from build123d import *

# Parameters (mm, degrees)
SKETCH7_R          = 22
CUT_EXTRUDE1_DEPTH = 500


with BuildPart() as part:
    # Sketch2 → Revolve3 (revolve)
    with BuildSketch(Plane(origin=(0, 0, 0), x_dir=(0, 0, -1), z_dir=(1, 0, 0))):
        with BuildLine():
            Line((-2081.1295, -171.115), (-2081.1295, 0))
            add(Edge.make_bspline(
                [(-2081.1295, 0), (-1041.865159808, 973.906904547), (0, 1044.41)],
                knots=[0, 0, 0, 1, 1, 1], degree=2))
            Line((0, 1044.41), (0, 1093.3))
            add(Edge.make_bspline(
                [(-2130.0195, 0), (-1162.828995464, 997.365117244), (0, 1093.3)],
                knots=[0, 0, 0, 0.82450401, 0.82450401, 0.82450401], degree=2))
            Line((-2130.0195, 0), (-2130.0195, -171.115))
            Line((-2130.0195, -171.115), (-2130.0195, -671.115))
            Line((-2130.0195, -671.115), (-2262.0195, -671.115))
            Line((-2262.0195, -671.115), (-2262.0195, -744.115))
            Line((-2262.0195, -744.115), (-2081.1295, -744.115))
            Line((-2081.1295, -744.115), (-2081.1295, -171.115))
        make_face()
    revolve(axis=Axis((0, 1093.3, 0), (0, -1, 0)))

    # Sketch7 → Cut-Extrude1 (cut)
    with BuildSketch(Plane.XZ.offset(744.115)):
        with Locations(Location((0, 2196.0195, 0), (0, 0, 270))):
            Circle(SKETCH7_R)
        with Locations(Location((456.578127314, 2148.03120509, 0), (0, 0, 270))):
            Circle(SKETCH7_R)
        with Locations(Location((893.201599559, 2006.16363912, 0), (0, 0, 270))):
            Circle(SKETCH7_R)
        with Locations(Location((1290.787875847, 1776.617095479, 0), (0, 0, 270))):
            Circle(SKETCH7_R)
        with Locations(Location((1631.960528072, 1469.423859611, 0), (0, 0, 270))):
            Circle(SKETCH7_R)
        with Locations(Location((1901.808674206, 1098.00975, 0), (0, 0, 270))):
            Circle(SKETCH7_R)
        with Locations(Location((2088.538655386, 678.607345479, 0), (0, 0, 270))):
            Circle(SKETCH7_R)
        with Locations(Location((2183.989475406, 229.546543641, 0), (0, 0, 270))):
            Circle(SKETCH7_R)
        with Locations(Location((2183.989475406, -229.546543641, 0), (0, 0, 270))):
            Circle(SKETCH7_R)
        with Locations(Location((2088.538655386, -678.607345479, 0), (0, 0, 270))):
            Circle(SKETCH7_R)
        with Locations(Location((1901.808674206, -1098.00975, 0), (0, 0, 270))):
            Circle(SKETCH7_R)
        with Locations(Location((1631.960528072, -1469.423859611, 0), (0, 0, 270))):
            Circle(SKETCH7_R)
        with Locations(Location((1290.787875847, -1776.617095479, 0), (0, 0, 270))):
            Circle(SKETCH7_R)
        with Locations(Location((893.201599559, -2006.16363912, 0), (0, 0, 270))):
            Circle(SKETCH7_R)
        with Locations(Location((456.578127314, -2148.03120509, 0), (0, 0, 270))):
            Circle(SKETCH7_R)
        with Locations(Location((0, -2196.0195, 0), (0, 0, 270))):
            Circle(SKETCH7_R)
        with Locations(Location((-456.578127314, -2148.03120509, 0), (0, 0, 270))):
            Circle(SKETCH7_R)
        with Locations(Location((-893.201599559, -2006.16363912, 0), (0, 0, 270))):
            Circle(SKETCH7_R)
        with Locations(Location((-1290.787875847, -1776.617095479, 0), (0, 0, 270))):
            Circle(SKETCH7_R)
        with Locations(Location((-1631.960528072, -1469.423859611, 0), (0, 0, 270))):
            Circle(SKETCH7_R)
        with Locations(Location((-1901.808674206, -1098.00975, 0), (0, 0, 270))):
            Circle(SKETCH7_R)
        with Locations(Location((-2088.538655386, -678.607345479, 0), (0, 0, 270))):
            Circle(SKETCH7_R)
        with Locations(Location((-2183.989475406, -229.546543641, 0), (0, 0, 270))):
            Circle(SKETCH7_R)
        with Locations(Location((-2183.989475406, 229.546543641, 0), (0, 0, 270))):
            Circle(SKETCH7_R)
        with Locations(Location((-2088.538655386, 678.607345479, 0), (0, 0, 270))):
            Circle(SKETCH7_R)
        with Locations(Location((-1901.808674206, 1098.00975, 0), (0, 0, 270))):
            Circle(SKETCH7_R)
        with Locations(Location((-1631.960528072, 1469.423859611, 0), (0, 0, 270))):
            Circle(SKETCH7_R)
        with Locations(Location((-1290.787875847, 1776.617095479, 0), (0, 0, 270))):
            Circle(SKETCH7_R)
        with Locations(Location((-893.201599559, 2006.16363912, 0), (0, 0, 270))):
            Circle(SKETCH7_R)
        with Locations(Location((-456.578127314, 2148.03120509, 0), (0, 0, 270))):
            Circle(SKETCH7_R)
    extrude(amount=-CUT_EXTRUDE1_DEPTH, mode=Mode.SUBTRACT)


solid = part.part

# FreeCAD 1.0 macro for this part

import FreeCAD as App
import Part
import Sketcher
from FreeCAD import Vector
Q = App.Units.Quantity

doc = App.newDocument("Part")
params = doc.addObject("Spreadsheet::Sheet", "Params")
for row, (alias, value) in enumerate([
    ("sketch1_width", "73 mm"),
    ("sketch1_height", "132 mm"),
    ("revolution_angle", "360 deg"),
    ("sketch2_diameter", "44 mm"),
    ("pocket1_length", "500 mm"),
], start=1):
    params.set(f"A{row}", alias)
    params.set(f"B{row}", "=" + value)
    params.setAlias(f"B{row}", alias)

body = doc.addObject("PartDesign::Body", "Body")

sketch1 = body.newObject("Sketcher::SketchObject", "Sketch")
sketch1.AttachmentSupport = (doc.getObject("YZ_Plane"), [""])
sketch1.MapMode = "FlatFace"
sketch1.addGeometry(Part.BSplineCurve([Vector(0, 2081.1295, 0), Vector(973.906905, 1041.86516, 0), Vector(1044.41, 0, 0)], [3, 3], [0, 1], False, 2, [1, 1, 1], False), False)
sketch1.addGeometry(Part.LineSegment(Vector(1044.41, 0, 0), Vector(1093.3, 0, 0)), False)
sketch1.addGeometry(Part.BSplineCurve([Vector(0, 2130.0195, 0), Vector(997.365117, 1162.828995, 0), Vector(1093.3, 0, 0)], [3, 3], [0, 0.82450401], False, 2, [1, 1, 1], False), False)
sketch1.addGeometry(Part.LineSegment(Vector(0, 2130.0195, 0), Vector(-671.115, 2130.0195, 0)), False)
sketch1.addGeometry(Part.LineSegment(Vector(-671.115, 2130.0195, 0), Vector(-671.115, 2262.0195, 0)), False)
sketch1.addGeometry(Part.LineSegment(Vector(-671.115, 2262.0195, 0), Vector(-744.115, 2262.0195, 0)), False)
sketch1.addGeometry(Part.LineSegment(Vector(-744.115, 2262.0195, 0), Vector(-744.115, 2081.1295, 0)), False)
sketch1.addGeometry(Part.LineSegment(Vector(-744.115, 2081.1295, 0), Vector(0, 2081.1295, 0)), False)
sketch1.addConstraint(Sketcher.Constraint("Block", 0))
sketch1.addConstraint(Sketcher.Constraint("Block", 2))
sketch1.addConstraint(Sketcher.Constraint("Coincident", 0, 2, 1, 1))
sketch1.addConstraint(Sketcher.Constraint("Coincident", 1, 2, 2, 2))
sketch1.addConstraint(Sketcher.Constraint("Coincident", 2, 1, 3, 1))
sketch1.addConstraint(Sketcher.Constraint("Coincident", 3, 2, 4, 1))
sketch1.addConstraint(Sketcher.Constraint("Coincident", 4, 2, 5, 1))
sketch1.addConstraint(Sketcher.Constraint("Coincident", 5, 2, 6, 1))
sketch1.addConstraint(Sketcher.Constraint("Coincident", 6, 2, 7, 1))
sketch1.addConstraint(Sketcher.Constraint("Coincident", 7, 2, 0, 1))
sketch1.addConstraint(Sketcher.Constraint("Horizontal", 3))
sketch1.addConstraint(Sketcher.Constraint("Vertical", 4))
sketch1.addConstraint(Sketcher.Constraint("Horizontal", 5))
sketch1.addConstraint(Sketcher.Constraint("Vertical", 6))
sketch1.addConstraint(Sketcher.Constraint("Horizontal", 7))
sketch1.addConstraint(Sketcher.Constraint("DistanceX", 5, 2, 5, 1, Q("73 mm")))
sketch1.addConstraint(Sketcher.Constraint("DistanceY", 4, 1, 4, 2, Q("132 mm")))
sketch1.addConstraint(Sketcher.Constraint("DistanceX", 3, 2, 3, 1, Q("671.115 mm")))
sketch1.setExpression("Constraints[15]", "Params.sketch1_width")
sketch1.setExpression("Constraints[16]", "Params.sketch1_height")
revolution = body.newObject("PartDesign::Revolution", "Revolution")
revolution.Profile = sketch1
revolution.ReferenceAxis = (sketch1, ["H_Axis"])
revolution.setExpression("Angle", "Params.revolution_angle")

sketch2 = body.newObject("Sketcher::SketchObject", "Sketch001")
sketch2.AttachmentSupport = (doc.getObject("XZ_Plane"), [""])
sketch2.MapMode = "FlatFace"
sketch2.AttachmentOffset = App.Placement(Vector(0, 0, 744.115), App.Rotation())
sketch2.addGeometry(Part.Circle(Vector(0, 2196, 0), Vector(0, 0, 1), 22), False)
sketch2.addGeometry(Part.Circle(Vector(457, 2148, 0), Vector(0, 0, 1), 22), False)
sketch2.addGeometry(Part.Circle(Vector(893, 2006, 0), Vector(0, 0, 1), 22), False)
sketch2.addGeometry(Part.Circle(Vector(1291, 1777, 0), Vector(0, 0, 1), 22), False)
sketch2.addGeometry(Part.Circle(Vector(1632, 1469, 0), Vector(0, 0, 1), 22), False)
sketch2.addGeometry(Part.Circle(Vector(1902, 1098, 0), Vector(0, 0, 1), 22), False)
sketch2.addGeometry(Part.Circle(Vector(2089, 679, 0), Vector(0, 0, 1), 22), False)
sketch2.addGeometry(Part.Circle(Vector(2184, 230, 0), Vector(0, 0, 1), 22), False)
sketch2.addGeometry(Part.Circle(Vector(2184, -230, 0), Vector(0, 0, 1), 22), False)
sketch2.addGeometry(Part.Circle(Vector(2089, -679, 0), Vector(0, 0, 1), 22), False)
sketch2.addGeometry(Part.Circle(Vector(1902, -1098, 0), Vector(0, 0, 1), 22), False)
sketch2.addGeometry(Part.Circle(Vector(1632, -1469, 0), Vector(0, 0, 1), 22), False)
sketch2.addGeometry(Part.Circle(Vector(1291, -1777, 0), Vector(0, 0, 1), 22), False)
sketch2.addGeometry(Part.Circle(Vector(893, -2006, 0), Vector(0, 0, 1), 22), False)
sketch2.addGeometry(Part.Circle(Vector(457, -2148, 0), Vector(0, 0, 1), 22), False)
sketch2.addGeometry(Part.Circle(Vector(0, -2196, 0), Vector(0, 0, 1), 22), False)
sketch2.addGeometry(Part.Circle(Vector(-457, -2148, 0), Vector(0, 0, 1), 22), False)
sketch2.addGeometry(Part.Circle(Vector(-893, -2006, 0), Vector(0, 0, 1), 22), False)
sketch2.addGeometry(Part.Circle(Vector(-1291, -1777, 0), Vector(0, 0, 1), 22), False)
sketch2.addGeometry(Part.Circle(Vector(-1632, -1469, 0), Vector(0, 0, 1), 22), False)
sketch2.addGeometry(Part.Circle(Vector(-1902, -1098, 0), Vector(0, 0, 1), 22), False)
sketch2.addGeometry(Part.Circle(Vector(-2089, -679, 0), Vector(0, 0, 1), 22), False)
sketch2.addGeometry(Part.Circle(Vector(-2184, -230, 0), Vector(0, 0, 1), 22), False)
sketch2.addGeometry(Part.Circle(Vector(-2184, 230, 0), Vector(0, 0, 1), 22), False)
sketch2.addGeometry(Part.Circle(Vector(-2089, 679, 0), Vector(0, 0, 1), 22), False)
sketch2.addGeometry(Part.Circle(Vector(-1902, 1098, 0), Vector(0, 0, 1), 22), False)
sketch2.addGeometry(Part.Circle(Vector(-1632, 1469, 0), Vector(0, 0, 1), 22), False)
sketch2.addGeometry(Part.Circle(Vector(-1291, 1777, 0), Vector(0, 0, 1), 22), False)
sketch2.addGeometry(Part.Circle(Vector(-893, 2006, 0), Vector(0, 0, 1), 22), False)
sketch2.addGeometry(Part.Circle(Vector(-457, 2148, 0), Vector(0, 0, 1), 22), False)
sketch2.addConstraint(Sketcher.Constraint("Equal", 0, 1))
sketch2.addConstraint(Sketcher.Constraint("Equal", 1, 2))
sketch2.addConstraint(Sketcher.Constraint("Equal", 2, 3))
sketch2.addConstraint(Sketcher.Constraint("Equal", 3, 4))
sketch2.addConstraint(Sketcher.Constraint("Equal", 4, 5))
sketch2.addConstraint(Sketcher.Constraint("Equal", 5, 6))
sketch2.addConstraint(Sketcher.Constraint("Equal", 6, 7))
sketch2.addConstraint(Sketcher.Constraint("Equal", 7, 8))
sketch2.addConstraint(Sketcher.Constraint("Equal", 8, 9))
sketch2.addConstraint(Sketcher.Constraint("Equal", 9, 10))
sketch2.addConstraint(Sketcher.Constraint("Equal", 10, 11))
sketch2.addConstraint(Sketcher.Constraint("Equal", 11, 12))
sketch2.addConstraint(Sketcher.Constraint("Equal", 12, 13))
sketch2.addConstraint(Sketcher.Constraint("Equal", 13, 14))
sketch2.addConstraint(Sketcher.Constraint("Equal", 14, 15))
sketch2.addConstraint(Sketcher.Constraint("Equal", 15, 16))
sketch2.addConstraint(Sketcher.Constraint("Equal", 16, 17))
sketch2.addConstraint(Sketcher.Constraint("Equal", 17, 18))
sketch2.addConstraint(Sketcher.Constraint("Equal", 18, 19))
sketch2.addConstraint(Sketcher.Constraint("Equal", 19, 20))
sketch2.addConstraint(Sketcher.Constraint("Equal", 20, 21))
sketch2.addConstraint(Sketcher.Constraint("Equal", 21, 22))
sketch2.addConstraint(Sketcher.Constraint("Equal", 22, 23))
sketch2.addConstraint(Sketcher.Constraint("Equal", 23, 24))
sketch2.addConstraint(Sketcher.Constraint("Equal", 24, 25))
sketch2.addConstraint(Sketcher.Constraint("Equal", 25, 26))
sketch2.addConstraint(Sketcher.Constraint("Equal", 26, 27))
sketch2.addConstraint(Sketcher.Constraint("Equal", 27, 28))
sketch2.addConstraint(Sketcher.Constraint("Equal", 28, 29))
sketch2.addConstraint(Sketcher.Constraint("Symmetric", 0, 3, 15, 3, -1, 1))
sketch2.addConstraint(Sketcher.Constraint("Symmetric", 1, 3, 16, 3, -1, 1))
sketch2.addConstraint(Sketcher.Constraint("Symmetric", 2, 3, 17, 3, -1, 1))
sketch2.addConstraint(Sketcher.Constraint("Symmetric", 3, 3, 18, 3, -1, 1))
sketch2.addConstraint(Sketcher.Constraint("Symmetric", 4, 3, 19, 3, -1, 1))
sketch2.addConstraint(Sketcher.Constraint("Symmetric", 5, 3, 20, 3, -1, 1))
sketch2.addConstraint(Sketcher.Constraint("Symmetric", 6, 3, 21, 3, -1, 1))
sketch2.addConstraint(Sketcher.Constraint("Symmetric", 7, 3, 22, 3, -1, 1))
sketch2.addConstraint(Sketcher.Constraint("Symmetric", 8, 3, 23, 3, -1, 1))
sketch2.addConstraint(Sketcher.Constraint("Symmetric", 9, 3, 24, 3, -1, 1))
sketch2.addConstraint(Sketcher.Constraint("Symmetric", 10, 3, 25, 3, -1, 1))
sketch2.addConstraint(Sketcher.Constraint("Symmetric", 11, 3, 26, 3, -1, 1))
sketch2.addConstraint(Sketcher.Constraint("Symmetric", 12, 3, 27, 3, -1, 1))
sketch2.addConstraint(Sketcher.Constraint("Symmetric", 13, 3, 28, 3, -1, 1))
sketch2.addConstraint(Sketcher.Constraint("Symmetric", 14, 3, 29, 3, -1, 1))
sketch2.addConstraint(Sketcher.Constraint("Symmetric", 14, 3, 16, 3, -2))
sketch2.addConstraint(Sketcher.Constraint("Symmetric", 13, 3, 17, 3, -2))
sketch2.addConstraint(Sketcher.Constraint("Symmetric", 12, 3, 18, 3, -2))
sketch2.addConstraint(Sketcher.Constraint("Symmetric", 11, 3, 19, 3, -2))
sketch2.addConstraint(Sketcher.Constraint("Symmetric", 10, 3, 20, 3, -2))
sketch2.addConstraint(Sketcher.Constraint("Symmetric", 9, 3, 21, 3, -2))
sketch2.addConstraint(Sketcher.Constraint("Symmetric", 8, 3, 22, 3, -2))
sketch2.addConstraint(Sketcher.Constraint("PointOnObject", 0, 3, -2))
sketch2.addConstraint(Sketcher.Constraint("Diameter", 0, Q("44 mm")))
sketch2.addConstraint(Sketcher.Constraint("DistanceY", -1, 1, 0, 3, Q("2196.0195 mm")))
sketch2.addConstraint(Sketcher.Constraint("DistanceX", -1, 1, 2, 3, Q("893.2016 mm")))
sketch2.addConstraint(Sketcher.Constraint("DistanceX", 1, 3, 4, 3, Q("1175.382401 mm")))
sketch2.addConstraint(Sketcher.Constraint("DistanceX", 3, 3, 5, 3, Q("611.020798 mm")))
sketch2.addConstraint(Sketcher.Constraint("DistanceY", 7, 3, 6, 3, Q("449.060802 mm")))
sketch2.addConstraint(Sketcher.Constraint("DistanceX", 5, 3, 7, 3, Q("282.180801 mm")))
sketch2.addConstraint(Sketcher.Constraint("DistanceY", 10, 3, 5, 3, Q("2196.0195 mm")))
sketch2.addConstraint(Sketcher.Constraint("DistanceY", -1, 1, 2, 3, Q("2006.163639 mm")))
sketch2.addConstraint(Sketcher.Constraint("DistanceX", -1, 1, 4, 3, Q("1631.960528 mm")))
sketch2.addConstraint(Sketcher.Constraint("DistanceY", -1, 1, 4, 3, Q("1469.42386 mm")))
sketch2.addConstraint(Sketcher.Constraint("DistanceX", 1, 3, 3, 3, Q("834.209749 mm")))
sketch2.addConstraint(Sketcher.Constraint("DistanceY", 3, 3, 1, 3, Q("371.41411 mm")))
sketch2.addConstraint(Sketcher.Constraint("DistanceX", 5, 3, 6, 3, Q("186.729981 mm")))
sketch2.addConstraint(Sketcher.Constraint("DistanceY", 6, 3, 3, 3, Q("1098.00975 mm")))
sketch2.addConstraint(Sketcher.Constraint("DistanceY", 8, 3, 6, 3, Q("908.153889 mm")))
sketch2.setExpression("Constraints[52]", "Params.sketch2_diameter")
pocket1 = body.newObject("PartDesign::Pocket", "Pocket")
pocket1.Profile = sketch2
pocket1.setExpression("Length", "Params.pocket1_length")

doc.recompute()
